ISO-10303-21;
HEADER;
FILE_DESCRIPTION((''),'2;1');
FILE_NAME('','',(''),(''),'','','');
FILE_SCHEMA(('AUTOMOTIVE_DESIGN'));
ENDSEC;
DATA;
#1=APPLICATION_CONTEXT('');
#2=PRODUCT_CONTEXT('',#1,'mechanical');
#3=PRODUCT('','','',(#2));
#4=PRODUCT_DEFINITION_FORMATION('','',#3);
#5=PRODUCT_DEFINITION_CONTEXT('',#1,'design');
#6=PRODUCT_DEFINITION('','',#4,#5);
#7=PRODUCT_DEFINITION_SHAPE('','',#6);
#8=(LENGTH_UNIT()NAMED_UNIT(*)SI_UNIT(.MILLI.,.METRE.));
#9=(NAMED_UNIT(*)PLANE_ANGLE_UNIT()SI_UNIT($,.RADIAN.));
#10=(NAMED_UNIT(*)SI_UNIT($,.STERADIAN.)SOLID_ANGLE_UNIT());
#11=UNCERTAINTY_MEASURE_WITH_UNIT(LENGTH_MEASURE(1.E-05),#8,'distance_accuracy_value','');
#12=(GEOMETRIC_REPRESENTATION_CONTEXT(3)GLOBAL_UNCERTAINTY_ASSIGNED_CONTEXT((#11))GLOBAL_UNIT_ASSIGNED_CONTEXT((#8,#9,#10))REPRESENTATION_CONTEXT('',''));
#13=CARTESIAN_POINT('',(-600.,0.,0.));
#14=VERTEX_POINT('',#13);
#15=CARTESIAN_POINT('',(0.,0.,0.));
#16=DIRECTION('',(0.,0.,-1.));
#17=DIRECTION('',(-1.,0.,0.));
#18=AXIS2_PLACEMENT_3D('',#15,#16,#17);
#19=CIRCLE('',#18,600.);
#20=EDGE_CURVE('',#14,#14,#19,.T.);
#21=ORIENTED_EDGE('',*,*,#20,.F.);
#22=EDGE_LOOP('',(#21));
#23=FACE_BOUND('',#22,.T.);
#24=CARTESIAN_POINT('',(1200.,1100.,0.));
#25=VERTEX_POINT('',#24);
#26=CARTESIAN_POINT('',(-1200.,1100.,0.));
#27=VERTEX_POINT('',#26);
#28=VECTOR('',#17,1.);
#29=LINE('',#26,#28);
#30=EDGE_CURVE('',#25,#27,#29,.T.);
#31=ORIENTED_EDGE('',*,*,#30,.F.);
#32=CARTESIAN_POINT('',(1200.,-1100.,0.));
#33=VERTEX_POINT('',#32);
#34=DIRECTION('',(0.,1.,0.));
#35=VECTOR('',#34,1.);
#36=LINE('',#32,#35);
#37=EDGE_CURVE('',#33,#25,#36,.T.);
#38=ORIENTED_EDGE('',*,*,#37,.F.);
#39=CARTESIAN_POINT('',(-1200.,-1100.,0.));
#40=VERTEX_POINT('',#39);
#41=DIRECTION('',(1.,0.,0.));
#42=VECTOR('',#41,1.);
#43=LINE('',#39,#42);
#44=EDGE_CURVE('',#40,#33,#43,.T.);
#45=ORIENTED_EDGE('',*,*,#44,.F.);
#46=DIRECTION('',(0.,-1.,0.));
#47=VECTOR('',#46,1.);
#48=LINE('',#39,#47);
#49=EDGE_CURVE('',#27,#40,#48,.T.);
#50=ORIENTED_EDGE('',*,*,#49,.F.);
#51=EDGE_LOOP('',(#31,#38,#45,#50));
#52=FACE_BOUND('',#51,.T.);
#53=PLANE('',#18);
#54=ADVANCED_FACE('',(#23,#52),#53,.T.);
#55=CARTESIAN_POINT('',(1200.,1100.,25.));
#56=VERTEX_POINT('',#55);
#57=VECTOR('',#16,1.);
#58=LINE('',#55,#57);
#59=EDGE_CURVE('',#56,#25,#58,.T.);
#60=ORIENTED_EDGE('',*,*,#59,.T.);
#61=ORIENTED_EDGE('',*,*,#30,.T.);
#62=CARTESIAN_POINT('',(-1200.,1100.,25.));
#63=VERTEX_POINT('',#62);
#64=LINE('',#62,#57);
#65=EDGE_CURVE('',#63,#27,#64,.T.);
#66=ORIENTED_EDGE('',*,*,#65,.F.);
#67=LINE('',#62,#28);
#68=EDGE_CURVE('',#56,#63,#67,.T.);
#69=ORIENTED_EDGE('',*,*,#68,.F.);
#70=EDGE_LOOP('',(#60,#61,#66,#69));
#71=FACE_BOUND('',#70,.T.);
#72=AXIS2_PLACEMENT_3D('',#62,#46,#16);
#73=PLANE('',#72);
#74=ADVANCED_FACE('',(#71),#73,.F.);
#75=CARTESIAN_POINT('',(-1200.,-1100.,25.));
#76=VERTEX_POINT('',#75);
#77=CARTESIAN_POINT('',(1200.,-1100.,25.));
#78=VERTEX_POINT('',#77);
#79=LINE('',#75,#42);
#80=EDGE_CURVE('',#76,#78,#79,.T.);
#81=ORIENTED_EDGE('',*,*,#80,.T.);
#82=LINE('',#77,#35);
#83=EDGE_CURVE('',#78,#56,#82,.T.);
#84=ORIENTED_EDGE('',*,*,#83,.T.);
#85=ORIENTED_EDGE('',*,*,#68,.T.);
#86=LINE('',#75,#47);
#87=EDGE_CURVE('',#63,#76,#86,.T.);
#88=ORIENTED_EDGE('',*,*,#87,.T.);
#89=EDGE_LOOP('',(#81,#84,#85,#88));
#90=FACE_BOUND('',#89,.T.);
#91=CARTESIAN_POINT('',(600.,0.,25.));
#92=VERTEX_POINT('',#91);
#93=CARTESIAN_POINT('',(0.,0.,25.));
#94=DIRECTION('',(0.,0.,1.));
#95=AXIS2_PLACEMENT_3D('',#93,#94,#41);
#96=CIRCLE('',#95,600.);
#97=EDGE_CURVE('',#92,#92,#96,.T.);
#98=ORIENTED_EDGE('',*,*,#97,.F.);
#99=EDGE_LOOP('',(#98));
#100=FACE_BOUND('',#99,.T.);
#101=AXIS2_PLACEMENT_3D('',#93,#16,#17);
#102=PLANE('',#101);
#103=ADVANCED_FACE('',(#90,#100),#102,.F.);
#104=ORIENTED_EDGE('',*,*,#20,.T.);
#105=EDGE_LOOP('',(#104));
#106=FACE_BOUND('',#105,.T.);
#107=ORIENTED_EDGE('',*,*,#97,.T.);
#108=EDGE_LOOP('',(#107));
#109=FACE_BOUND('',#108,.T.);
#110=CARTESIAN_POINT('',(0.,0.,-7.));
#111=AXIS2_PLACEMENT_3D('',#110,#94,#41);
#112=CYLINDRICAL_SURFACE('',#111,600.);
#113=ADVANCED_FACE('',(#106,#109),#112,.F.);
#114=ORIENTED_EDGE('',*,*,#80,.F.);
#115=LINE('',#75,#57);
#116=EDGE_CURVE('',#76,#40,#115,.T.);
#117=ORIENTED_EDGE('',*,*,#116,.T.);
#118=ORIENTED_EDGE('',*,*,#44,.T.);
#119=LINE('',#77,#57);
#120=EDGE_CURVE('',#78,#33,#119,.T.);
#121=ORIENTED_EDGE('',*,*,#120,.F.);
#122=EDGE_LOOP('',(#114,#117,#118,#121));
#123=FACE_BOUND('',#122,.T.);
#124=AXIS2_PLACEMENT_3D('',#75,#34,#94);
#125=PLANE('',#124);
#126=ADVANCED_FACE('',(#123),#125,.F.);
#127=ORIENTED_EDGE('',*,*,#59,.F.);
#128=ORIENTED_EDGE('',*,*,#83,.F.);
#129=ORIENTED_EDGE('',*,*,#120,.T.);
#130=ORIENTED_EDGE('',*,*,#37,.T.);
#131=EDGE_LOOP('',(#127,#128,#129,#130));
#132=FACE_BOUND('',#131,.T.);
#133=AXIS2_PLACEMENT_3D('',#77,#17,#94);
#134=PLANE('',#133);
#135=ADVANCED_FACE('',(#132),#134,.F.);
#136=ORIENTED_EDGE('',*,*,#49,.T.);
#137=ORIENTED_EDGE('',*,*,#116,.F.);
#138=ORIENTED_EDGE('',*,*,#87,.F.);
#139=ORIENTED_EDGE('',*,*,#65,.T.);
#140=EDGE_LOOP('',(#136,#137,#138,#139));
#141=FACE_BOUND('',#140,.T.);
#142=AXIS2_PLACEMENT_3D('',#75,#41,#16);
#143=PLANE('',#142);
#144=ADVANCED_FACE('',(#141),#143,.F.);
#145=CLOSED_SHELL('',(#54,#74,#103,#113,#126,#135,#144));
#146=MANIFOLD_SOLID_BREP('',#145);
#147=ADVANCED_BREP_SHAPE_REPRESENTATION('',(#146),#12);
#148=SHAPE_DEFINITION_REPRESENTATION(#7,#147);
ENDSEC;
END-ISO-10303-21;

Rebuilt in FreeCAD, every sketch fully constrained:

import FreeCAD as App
import Part
import Sketcher

V = App.Vector
Q = App.Units.Quantity

doc = App.newDocument("Part")
params = doc.addObject("Spreadsheet::Sheet", "Params")
for row, (alias, value) in enumerate([
    ("sketch1_width", "2400 mm"),
    ("sketch1_height", "2200 mm"),
    ("pad1_length", "25 mm"),
    ("sketch2_diameter", "1200 mm"),
    ("pocket1_length", "32 mm"),
], start=1):
    params.set(f"A{row}", alias)
    params.set(f"B{row}", "=" + value)
    params.setAlias(f"B{row}", alias)

body = doc.addObject("PartDesign::Body", "Body")

# Sketch on XY plane
sketch1 = body.newObject("Sketcher::SketchObject", "Sketch")
sketch1.AttachmentSupport = (doc.getObject("XY_Plane"), [""])
sketch1.MapMode = "FlatFace"
sketch1.addGeometry(Part.LineSegment(V(-1200, 1100, 0), V(-1200, -1100, 0)), False)
sketch1.addGeometry(Part.LineSegment(V(-1200, -1100, 0), V(1200, -1100, 0)), False)
sketch1.addGeometry(Part.LineSegment(V(1200, -1100, 0), V(1200, 1100, 0)), False)
sketch1.addGeometry(Part.LineSegment(V(1200, 1100, 0), V(-1200, 1100, 0)), False)
sketch1.addConstraint(Sketcher.Constraint("Coincident", 0, 2, 1, 1))
sketch1.addConstraint(Sketcher.Constraint("Coincident", 1, 2, 2, 1))
sketch1.addConstraint(Sketcher.Constraint("Coincident", 2, 2, 3, 1))
sketch1.addConstraint(Sketcher.Constraint("Coincident", 3, 2, 0, 1))
sketch1.addConstraint(Sketcher.Constraint("Vertical", 0))
sketch1.addConstraint(Sketcher.Constraint("Horizontal", 1))
sketch1.addConstraint(Sketcher.Constraint("Vertical", 2))
sketch1.addConstraint(Sketcher.Constraint("Horizontal", 3))
sketch1.addConstraint(Sketcher.Constraint("Symmetric", 0, 2, 2, 2, -1, 1))
sketch1.addConstraint(Sketcher.Constraint("DistanceX", 1, 1, 1, 2, Q("2400 mm")))
sketch1.addConstraint(Sketcher.Constraint("DistanceY", 0, 2, 0, 1, Q("2200 mm")))
sketch1.setExpression("Constraints[9]", "Params.sketch1_width")
sketch1.setExpression("Constraints[10]", "Params.sketch1_height")
pad1 = body.newObject("PartDesign::Pad", "Pad")
pad1.Profile = sketch1
pad1.setExpression("Length", "Params.pad1_length")

# Sketch on XY plane
sketch2 = body.newObject("Sketcher::SketchObject", "Sketch001")
sketch2.AttachmentSupport = (doc.getObject("XY_Plane"), [""])
sketch2.MapMode = "FlatFace"
sketch2.AttachmentOffset = App.Placement(V(0, 0, 25), App.Rotation())
sketch2.addGeometry(Part.Circle(V(0, 0, 0), V(0, 0, 1), 600), False)
sketch2.addConstraint(Sketcher.Constraint("Coincident", 0, 3, -1, 1))
sketch2.addConstraint(Sketcher.Constraint("Diameter", 0, Q("1200 mm")))
sketch2.setExpression("Constraints[1]", "Params.sketch2_diameter")
pocket1 = body.newObject("PartDesign::Pocket", "Pocket")
pocket1.Profile = sketch2
pocket1.setExpression("Length", "Params.pocket1_length")

doc.recompute()
